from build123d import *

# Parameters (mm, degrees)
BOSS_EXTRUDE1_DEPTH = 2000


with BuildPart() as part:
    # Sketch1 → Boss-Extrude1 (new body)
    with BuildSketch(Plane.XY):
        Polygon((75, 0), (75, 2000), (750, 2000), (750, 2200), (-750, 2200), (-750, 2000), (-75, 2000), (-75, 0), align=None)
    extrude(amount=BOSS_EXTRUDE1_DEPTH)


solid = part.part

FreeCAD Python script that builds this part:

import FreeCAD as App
import Part
import Sketcher
Q = App.Units.Quantity


def add_polygon(sketch, points):
    """Adds a closed chain of lines whose ends are joined by coincident constraints."""
    first, n = sketch.GeometryCount, len(points)
    for a, b in zip(points, points[1:] + points[:1]):
        sketch.addGeometry(Part.LineSegment(App.Vector(*a, 0), App.Vector(*b, 0)), False)
    for i in range(n):
        sketch.addConstraint(Sketcher.Constraint("Coincident", first + i, 2, first + (i + 1) % n, 1))

doc = App.newDocument("Part")
body = doc.addObject("PartDesign::Body", "Body")

sketch1 = body.newObject("Sketcher::SketchObject", "Sketch")
sketch1.AttachmentSupport = (doc.getObject("XY_Plane"), [""])
sketch1.MapMode = "FlatFace"
add_polygon(sketch1, [(75, 0), (75, 2000), (750, 2000), (750, 2200), (-750, 2200), (-750, 2000), (-75, 2000), (-75, 0)])
sketch1.addConstraint(Sketcher.Constraint("Vertical", 0))
sketch1.addConstraint(Sketcher.Constraint("Horizontal", 1))
sketch1.addConstraint(Sketcher.Constraint("Vertical", 2))
sketch1.addConstraint(Sketcher.Constraint("Horizontal", 3))
sketch1.addConstraint(Sketcher.Constraint("Vertical", 4))
sketch1.addConstraint(Sketcher.Constraint("Horizontal", 5))
sketch1.addConstraint(Sketcher.Constraint("Vertical", 6))
sketch1.addConstraint(Sketcher.Constraint("Horizontal", 7))
sketch1.addConstraint(Sketcher.Constraint("Symmetric", 6, 2, 7, 2, -1, 1))
sketch1.addConstraint(Sketcher.Constraint("Symmetric", 1, 2, 4, 2, -2))
sketch1.addConstraint(Sketcher.Constraint("DistanceX", 1, 1, 1, 2, Q("675 mm")))
sketch1.addConstraint(Sketcher.Constraint("DistanceX", 3, 2, 3, 1, Q("1500 mm")))
sketch1.addConstraint(Sketcher.Constraint("DistanceY", 0, 1, 0, 2, Q("2000 mm")))
sketch1.addConstraint(Sketcher.Constraint("DistanceY", 2, 1, 2, 2, Q("200 mm")))
pad1 = body.newObject("PartDesign::Pad", "Pad")
pad1.Profile = sketch1
pad1.Length = 2000

doc.recompute()
